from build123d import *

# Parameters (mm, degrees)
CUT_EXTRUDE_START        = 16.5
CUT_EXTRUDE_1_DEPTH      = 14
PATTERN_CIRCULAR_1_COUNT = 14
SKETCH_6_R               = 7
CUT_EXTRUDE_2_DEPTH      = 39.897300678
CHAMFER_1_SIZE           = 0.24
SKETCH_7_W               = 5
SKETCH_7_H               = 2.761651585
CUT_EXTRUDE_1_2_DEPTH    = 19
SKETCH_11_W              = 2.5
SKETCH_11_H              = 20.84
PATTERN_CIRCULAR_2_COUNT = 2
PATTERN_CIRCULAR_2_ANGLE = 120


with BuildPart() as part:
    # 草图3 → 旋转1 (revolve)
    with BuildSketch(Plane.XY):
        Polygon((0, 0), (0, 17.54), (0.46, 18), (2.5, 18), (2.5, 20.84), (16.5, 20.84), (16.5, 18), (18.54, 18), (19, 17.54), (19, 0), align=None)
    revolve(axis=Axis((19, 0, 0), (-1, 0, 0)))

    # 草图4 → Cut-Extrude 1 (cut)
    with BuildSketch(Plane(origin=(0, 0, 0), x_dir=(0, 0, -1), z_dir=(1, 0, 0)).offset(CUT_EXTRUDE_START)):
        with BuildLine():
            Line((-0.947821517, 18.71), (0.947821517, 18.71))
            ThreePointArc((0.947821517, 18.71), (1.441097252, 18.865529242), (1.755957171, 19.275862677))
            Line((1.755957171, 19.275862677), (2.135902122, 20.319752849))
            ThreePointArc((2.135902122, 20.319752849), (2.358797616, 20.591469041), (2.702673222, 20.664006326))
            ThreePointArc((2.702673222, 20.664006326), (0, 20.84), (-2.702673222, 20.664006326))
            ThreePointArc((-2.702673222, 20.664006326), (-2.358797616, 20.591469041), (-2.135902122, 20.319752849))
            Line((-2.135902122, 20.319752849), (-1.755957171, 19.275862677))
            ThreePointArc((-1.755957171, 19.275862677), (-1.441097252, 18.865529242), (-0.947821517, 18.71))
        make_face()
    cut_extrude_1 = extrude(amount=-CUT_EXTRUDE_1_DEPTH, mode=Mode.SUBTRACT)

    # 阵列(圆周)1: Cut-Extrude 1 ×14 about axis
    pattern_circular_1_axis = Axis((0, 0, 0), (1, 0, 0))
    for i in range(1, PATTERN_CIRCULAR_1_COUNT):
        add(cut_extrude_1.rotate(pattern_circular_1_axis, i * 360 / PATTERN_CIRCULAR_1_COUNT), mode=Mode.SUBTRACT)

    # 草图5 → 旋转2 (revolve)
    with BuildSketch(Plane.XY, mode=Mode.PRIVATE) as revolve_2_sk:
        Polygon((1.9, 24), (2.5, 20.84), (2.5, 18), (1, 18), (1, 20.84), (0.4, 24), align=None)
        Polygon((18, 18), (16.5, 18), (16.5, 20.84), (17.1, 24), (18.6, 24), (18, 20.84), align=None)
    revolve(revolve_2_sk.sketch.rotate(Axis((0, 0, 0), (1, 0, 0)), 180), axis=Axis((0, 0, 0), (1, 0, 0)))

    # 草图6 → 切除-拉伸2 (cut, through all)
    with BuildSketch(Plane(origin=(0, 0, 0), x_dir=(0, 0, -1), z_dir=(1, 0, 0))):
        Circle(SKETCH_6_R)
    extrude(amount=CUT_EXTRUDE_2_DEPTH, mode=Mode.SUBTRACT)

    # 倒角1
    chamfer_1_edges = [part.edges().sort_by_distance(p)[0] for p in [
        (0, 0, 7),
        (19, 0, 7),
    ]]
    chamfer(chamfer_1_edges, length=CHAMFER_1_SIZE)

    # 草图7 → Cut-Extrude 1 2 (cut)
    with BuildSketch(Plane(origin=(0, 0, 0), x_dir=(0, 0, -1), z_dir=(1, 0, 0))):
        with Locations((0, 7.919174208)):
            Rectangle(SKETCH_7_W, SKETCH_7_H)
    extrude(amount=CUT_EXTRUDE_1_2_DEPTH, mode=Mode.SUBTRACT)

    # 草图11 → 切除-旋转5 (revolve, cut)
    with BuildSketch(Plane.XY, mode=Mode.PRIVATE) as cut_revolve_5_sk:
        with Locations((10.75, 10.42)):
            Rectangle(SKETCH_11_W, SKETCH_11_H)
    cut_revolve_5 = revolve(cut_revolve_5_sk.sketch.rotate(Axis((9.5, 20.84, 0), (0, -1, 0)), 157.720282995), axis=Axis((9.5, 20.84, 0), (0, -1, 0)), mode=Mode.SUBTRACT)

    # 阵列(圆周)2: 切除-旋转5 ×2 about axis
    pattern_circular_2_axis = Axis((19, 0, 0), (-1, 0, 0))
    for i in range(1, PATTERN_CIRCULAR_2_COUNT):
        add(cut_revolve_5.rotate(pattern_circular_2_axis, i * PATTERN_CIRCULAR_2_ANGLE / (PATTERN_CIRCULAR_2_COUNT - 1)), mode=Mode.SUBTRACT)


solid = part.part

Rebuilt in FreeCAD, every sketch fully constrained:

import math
import FreeCAD as App
import Part
import Sketcher
Q = App.Units.Quantity


def edges_at(feature, points):
    """Names of the edges that pass closest to the given points."""
    edges = feature.Shape.Edges
    near = lambda p: min(range(len(edges)), key=lambda i: edges[i].distToShape(Part.Vertex(*p))[0])
    return sorted({f"Edge{near(p) + 1}" for p in points})


def add_polygon(sketch, points):
    """Adds a closed chain of lines whose ends are joined by coincident constraints."""
    first, n = sketch.GeometryCount, len(points)
    for a, b in zip(points, points[1:] + points[:1]):
        sketch.addGeometry(Part.LineSegment(App.Vector(*a, 0), App.Vector(*b, 0)), False)
    for i in range(n):
        sketch.addConstraint(Sketcher.Constraint("Coincident", first + i, 2, first + (i + 1) % n, 1))

doc = App.newDocument("Part")
params = doc.addObject("Spreadsheet::Sheet", "Params")
for row, (alias, value) in enumerate([
    ("sketch1_width", "19 mm"),
    ("sketch1_width2", "14 mm"),
    ("sketch1_width3", "2.04 mm"),
    ("sketch1_height", "2.84 mm"),
    ("revolution_angle", "360 deg"),
    ("sketch2_radius", "0.86 mm"),
    ("sketch2_radius2", "0.53 mm"),
    ("sketch2_radius3", "20.84 mm"),
    ("pocket1_length", "14 mm"),
    ("sketch3_width", "1.5 mm"),
    ("sketch3_height", "2.84 mm"),
    ("revolution2_angle", "360 deg"),
    ("sketch4_diameter", "14 mm"),
    ("chamfer_size", "0.24 mm"),
    ("sketch5_height", "5 mm"),
    ("pocket3_length", "19 mm"),
    ("sketch6_width", "2.5 mm"),
    ("sketch6_height", "20.84 mm"),
    ("groove_angle", "360 deg"),
], start=1):
    params.set(f"A{row}", alias)
    params.set(f"B{row}", "=" + value)
    params.setAlias(f"B{row}", alias)

body = doc.addObject("PartDesign::Body", "Body")

# Sketch on XY plane
sketch1 = body.newObject("Sketcher::SketchObject", "Sketch")
sketch1.AttachmentSupport = (doc.getObject("XY_Plane"), [""])
sketch1.MapMode = "FlatFace"
add_polygon(sketch1, [(0, 17.5), (0, 0), (19, 0), (19, 17.5), (18.5, 18), (16.5, 18), (16.5, 20.8), (2.5, 20.8), (2.5, 18), (0.5, 18)])  # lines 0-9
sketch1.addConstraint(Sketcher.Constraint("Vertical", 0))
sketch1.addConstraint(Sketcher.Constraint("Horizontal", 1))
sketch1.addConstraint(Sketcher.Constraint("Vertical", 2))
sketch1.addConstraint(Sketcher.Constraint("Horizontal", 4))
sketch1.addConstraint(Sketcher.Constraint("Vertical", 5))
sketch1.addConstraint(Sketcher.Constraint("Horizontal", 6))
sketch1.addConstraint(Sketcher.Constraint("Vertical", 7))
sketch1.addConstraint(Sketcher.Constraint("Horizontal", 8))
sketch1.addConstraint(Sketcher.Constraint("Coincident", 0, 2, -1, 1))
sketch1.addConstraint(Sketcher.Constraint("Perpendicular", 3, 9))
sketch1.addConstraint(Sketcher.Constraint("Horizontal", 4, 2, 7, 2))
sketch1.addConstraint(Sketcher.Constraint("Horizontal", 2, 2, 9, 2))
sketch1.addConstraint(Sketcher.Constraint("Equal", 4, 8))
sketch1.addConstraint(Sketcher.Constraint("Equal", 3, 9))
sketch1.addConstraint(Sketcher.Constraint("DistanceX", 1, 1, 1, 2, 19.0))
sketch1.addConstraint(Sketcher.Constraint("DistanceX", 6, 2, 6, 1, 14.0))
sketch1.addConstraint(Sketcher.Constraint("DistanceY", -1, 1, 3, 2, 18.0))
sketch1.addConstraint(Sketcher.Constraint("DistanceX", 4, 2, 4, 1, 2.04))
sketch1.addConstraint(Sketcher.Constraint("DistanceY", 5, 1, 5, 2, 2.84))
sketch1.setExpression("Constraints[24]", "Params.sketch1_width")
sketch1.setExpression("Constraints[25]", "Params.sketch1_width2")
sketch1.setExpression("Constraints[27]", "Params.sketch1_width3")
sketch1.setExpression("Constraints[28]", "Params.sketch1_height")
revolution = body.newObject("PartDesign::Revolution", "Revolution")
revolution.Profile = sketch1
revolution.ReferenceAxis = (sketch1, ["H_Axis"])
revolution.setExpression("Angle", "Params.revolution_angle")

# Sketch on YZ plane
sketch2 = body.newObject("Sketcher::SketchObject", "Sketch001")
sketch2.AttachmentSupport = (doc.getObject("YZ_Plane"), [""])
sketch2.MapMode = "FlatFace"
sketch2.AttachmentOffset = App.Placement(App.Vector(0, 0, 16.5), App.Rotation())
sketch2.addGeometry(Part.LineSegment(App.Vector(18.7, 0.9, 0), App.Vector(18.7, -0.9, 0)), False)
sketch2.addGeometry(Part.ArcOfCircle(Part.Circle(App.Vector(19.6, -0.9, 0), App.Vector(0, 0, 1), 0.9), math.radians(-180), math.radians(-110)), False)
sketch2.addGeometry(Part.LineSegment(App.Vector(19.3, -1.8, 0), App.Vector(20.3, -2.1, 0)), False)
sketch2.addGeometry(Part.ArcOfCircle(Part.Circle(App.Vector(20.1, -2.6, 0), App.Vector(0, 0, 1), 0.5), math.radians(-7), math.radians(70)), False)
sketch2.addGeometry(Part.ArcOfCircle(Part.Circle(App.Vector(0, 0, 0), App.Vector(0, 0, 1), 20.8), math.radians(-7.45), math.radians(7.45)), False)
sketch2.addGeometry(Part.ArcOfCircle(Part.Circle(App.Vector(20.1, 2.6, 0), App.Vector(0, 0, 1), 0.5), math.radians(-70), math.radians(7)), False)
sketch2.addGeometry(Part.LineSegment(App.Vector(20.3, 2.1, 0), App.Vector(19.3, 1.8, 0)), False)
sketch2.addGeometry(Part.ArcOfCircle(Part.Circle(App.Vector(19.6, 0.9, 0), App.Vector(0, 0, 1), 0.9), math.radians(110), math.radians(180)), False)
sketch2.addConstraint(Sketcher.Constraint("Tangent", 0, 2, 1, 1))
sketch2.addConstraint(Sketcher.Constraint("Tangent", 1, 2, 2, 1))
sketch2.addConstraint(Sketcher.Constraint("Tangent", 2, 2, 3, 2))
sketch2.addConstraint(Sketcher.Constraint("Tangent", 3, 1, 4, 1))
sketch2.addConstraint(Sketcher.Constraint("Tangent", 4, 2, 5, 2))
sketch2.addConstraint(Sketcher.Constraint("Tangent", 5, 1, 6, 1))
sketch2.addConstraint(Sketcher.Constraint("Tangent", 6, 2, 7, 1))
sketch2.addConstraint(Sketcher.Constraint("Tangent", 7, 2, 0, 1))
sketch2.addConstraint(Sketcher.Constraint("Vertical", 0))
sketch2.addConstraint(Sketcher.Constraint("Coincident", 4, 3, -1, 1))
sketch2.addConstraint(Sketcher.Constraint("Equal", 3, 5))
sketch2.addConstraint(Sketcher.Constraint("Equal", 1, 7))
sketch2.addConstraint(Sketcher.Constraint("Symmetric", 2, 2, 5, 1, -1))
sketch2.addConstraint(Sketcher.Constraint("Angle", 2, Q("-20 deg")))
sketch2.addConstraint(Sketcher.Constraint("Radius", 1, 0.86))
sketch2.addConstraint(Sketcher.Constraint("Radius", 3, 0.53))
sketch2.addConstraint(Sketcher.Constraint("Radius", 4, 20.84))
sketch2.addConstraint(Sketcher.Constraint("DistanceX", -1, 1, 1, 3, 19.57))
sketch2.addConstraint(Sketcher.Constraint("DistanceY", 0, 2, 0, 1, 1.895643))
sketch2.setExpression("Constraints[14]", "Params.sketch2_radius")
sketch2.setExpression("Constraints[15]", "Params.sketch2_radius2")
sketch2.setExpression("Constraints[16]", "Params.sketch2_radius3")
pocket1 = body.newObject("PartDesign::Pocket", "Pocket")
pocket1.Profile = sketch2
pocket1.setExpression("Length", "Params.pocket1_length")
doc.recompute()

polarpattern = body.newObject("PartDesign::PolarPattern", "PolarPattern")
polarpattern.Originals = [pocket1]
polarpattern.Axis = (doc.getObject("X_Axis"), [""])
polarpattern.Angle = 360
polarpattern.Occurrences = 14
body.Tip = polarpattern

# Sketch on XY plane
sketch3 = body.newObject("Sketcher::SketchObject", "Sketch002")
sketch3.AttachmentSupport = (doc.getObject("XY_Plane"), [""])
sketch3.MapMode = "FlatFace"
add_polygon(sketch3, [(2.5, 20.8), (1.9, 24), (0.4, 24), (1, 20.8), (1, 18), (2.5, 18)])  # lines 0-5
add_polygon(sketch3, [(16.5, 18), (18, 18), (18, 20.8), (18.6, 24), (17.1, 24), (16.5, 20.8)])  # lines 6-11
sketch3.addConstraint(Sketcher.Constraint("Horizontal", 1))
sketch3.addConstraint(Sketcher.Constraint("Vertical", 3))
sketch3.addConstraint(Sketcher.Constraint("Horizontal", 4))
sketch3.addConstraint(Sketcher.Constraint("Vertical", 5))
sketch3.addConstraint(Sketcher.Constraint("Horizontal", 6))
sketch3.addConstraint(Sketcher.Constraint("Vertical", 7))
sketch3.addConstraint(Sketcher.Constraint("Horizontal", 9))
sketch3.addConstraint(Sketcher.Constraint("Vertical", 11))
sketch3.addConstraint(Sketcher.Constraint("Parallel", 0, 2))
sketch3.addConstraint(Sketcher.Constraint("Parallel", 8, 10))
sketch3.addConstraint(Sketcher.Constraint("Horizontal", 2, 2, 5, 2))
sketch3.addConstraint(Sketcher.Constraint("Horizontal", 4, 2, 6, 2))
sketch3.addConstraint(Sketcher.Constraint("Horizontal", 5, 2, 7, 2))
sketch3.addConstraint(Sketcher.Constraint("Horizontal", 1, 2, 8, 2))
sketch3.addConstraint(Sketcher.Constraint("Horizontal", 7, 2, 10, 2))
sketch3.addConstraint(Sketcher.Constraint("Equal", 4, 6))
sketch3.addConstraint(Sketcher.Constraint("Equal", 2, 8))
sketch3.addConstraint(Sketcher.Constraint("DistanceX", 1, 2, 1, 1, 1.5))
sketch3.addConstraint(Sketcher.Constraint("DistanceY", -1, 1, 0, 2, 24.0))
sketch3.addConstraint(Sketcher.Constraint("DistanceX", -1, 1, 2, 2, 1.0))
sketch3.addConstraint(Sketcher.Constraint("DistanceY", -1, 1, 3, 2, 18.0))
sketch3.addConstraint(Sketcher.Constraint("DistanceX", -1, 1, 6, 2, 18.0))
sketch3.addConstraint(Sketcher.Constraint("DistanceY", 3, 2, 3, 1, 2.84))
sketch3.addConstraint(Sketcher.Constraint("DistanceX", -1, 1, 0, 2, 1.9))
sketch3.setExpression("Constraints[29]", "Params.sketch3_width")
sketch3.setExpression("Constraints[34]", "Params.sketch3_height")
revolution2 = body.newObject("PartDesign::Revolution", "Revolution001")
revolution2.Profile = sketch3
revolution2.ReferenceAxis = (sketch3, ["H_Axis"])
revolution2.setExpression("Angle", "Params.revolution2_angle")

# Sketch on YZ plane
sketch4 = body.newObject("Sketcher::SketchObject", "Sketch003")
sketch4.AttachmentSupport = (doc.getObject("YZ_Plane"), [""])
sketch4.MapMode = "FlatFace"
sketch4.addGeometry(Part.Circle(App.Vector(0, 0, 0), App.Vector(0, 0, 1), 7), False)
sketch4.addConstraint(Sketcher.Constraint("Coincident", 0, 3, -1, 1))
sketch4.addConstraint(Sketcher.Constraint("Diameter", 0, 14.0))
sketch4.setExpression("Constraints[1]", "Params.sketch4_diameter")
pocket2 = body.newObject("PartDesign::Pocket", "Pocket001")
pocket2.Profile = sketch4
pocket2.Type = "ThroughAll"
pocket2.Reversed = True
doc.recompute()

chamfer = body.newObject("PartDesign::Chamfer", "Chamfer")
chamfer.Base = (pocket2, edges_at(pocket2, [(0, 0, 7), (19, 0, 7)]))
chamfer.setExpression("Size", "Params.chamfer_size")

# Sketch on YZ plane
sketch5 = body.newObject("Sketcher::SketchObject", "Sketch004")
sketch5.AttachmentSupport = (doc.getObject("YZ_Plane"), [""])
sketch5.MapMode = "FlatFace"
add_polygon(sketch5, [(9.3, 2.5), (6.5, 2.5), (6.5, -2.5), (9.3, -2.5)])  # lines 0-3
sketch5.addConstraint(Sketcher.Constraint("Horizontal", 0))
sketch5.addConstraint(Sketcher.Constraint("Vertical", 1))
sketch5.addConstraint(Sketcher.Constraint("Horizontal", 2))
sketch5.addConstraint(Sketcher.Constraint("Vertical", 3))
sketch5.addConstraint(Sketcher.Constraint("DistanceY", 1, 2, 1, 1, 5.0))
sketch5.addConstraint(Sketcher.Constraint("DistanceY", -1, 1, 0, 2, 2.5))
sketch5.addConstraint(Sketcher.Constraint("DistanceX", -1, 1, 2, 2, 9.3))
sketch5.addConstraint(Sketcher.Constraint("DistanceX", 0, 2, 0, 1, 2.761652))
sketch5.setExpression("Constraints[8]", "Params.sketch5_height")
pocket3 = body.newObject("PartDesign::Pocket", "Pocket002")
pocket3.Profile = sketch5
pocket3.setExpression("Length", "Params.pocket3_length")
pocket3.Reversed = True

# Sketch on XY plane
sketch6 = body.newObject("Sketcher::SketchObject", "Sketch005")
sketch6.AttachmentSupport = (doc.getObject("XY_Plane"), [""])
sketch6.MapMode = "FlatFace"
add_polygon(sketch6, [(9.5, 20.8), (9.5, 0), (12, 0), (12, 20.8)])  # lines 0-3
sketch6.addGeometry(Part.LineSegment(App.Vector(9.5, 20.8, 0), App.Vector(9.5, 0, 0)), True)  # axis
sketch6.addConstraint(Sketcher.Constraint("Vertical", 0))
sketch6.addConstraint(Sketcher.Constraint("Horizontal", 1))
sketch6.addConstraint(Sketcher.Constraint("Vertical", 2))
sketch6.addConstraint(Sketcher.Constraint("Horizontal", 3))
sketch6.addConstraint(Sketcher.Constraint("Vertical", 4))
sketch6.addConstraint(Sketcher.Constraint("Coincident", 4, 1, 3, 2))
sketch6.addConstraint(Sketcher.Constraint("PointOnObject", 0, 2, -1))
sketch6.addConstraint(Sketcher.Constraint("PointOnObject", 4, 2, -1))
sketch6.addConstraint(Sketcher.Constraint("DistanceX", 1, 1, 1, 2, 2.5))
sketch6.addConstraint(Sketcher.Constraint("DistanceX", -1, 1, 1, 2, 12.0))
sketch6.addConstraint(Sketcher.Constraint("DistanceY", 0, 2, 0, 1, 20.84))
sketch6.setExpression("Constraints[12]", "Params.sketch6_width")
sketch6.setExpression("Constraints[14]", "Params.sketch6_height")
groove = body.newObject("PartDesign::Groove", "Groove")
groove.Profile = sketch6
groove.ReferenceAxis = (sketch6, ["Axis0"])
groove.setExpression("Angle", "Params.groove_angle")
doc.recompute()

polarpattern2 = body.newObject("PartDesign::PolarPattern", "PolarPattern001")
polarpattern2.Originals = [groove]
polarpattern2.Axis = (doc.getObject("X_Axis"), [""])
polarpattern2.Angle = 120
polarpattern2.Occurrences = 2
polarpattern2.Reversed = True
body.Tip = polarpattern2

doc.recompute()
